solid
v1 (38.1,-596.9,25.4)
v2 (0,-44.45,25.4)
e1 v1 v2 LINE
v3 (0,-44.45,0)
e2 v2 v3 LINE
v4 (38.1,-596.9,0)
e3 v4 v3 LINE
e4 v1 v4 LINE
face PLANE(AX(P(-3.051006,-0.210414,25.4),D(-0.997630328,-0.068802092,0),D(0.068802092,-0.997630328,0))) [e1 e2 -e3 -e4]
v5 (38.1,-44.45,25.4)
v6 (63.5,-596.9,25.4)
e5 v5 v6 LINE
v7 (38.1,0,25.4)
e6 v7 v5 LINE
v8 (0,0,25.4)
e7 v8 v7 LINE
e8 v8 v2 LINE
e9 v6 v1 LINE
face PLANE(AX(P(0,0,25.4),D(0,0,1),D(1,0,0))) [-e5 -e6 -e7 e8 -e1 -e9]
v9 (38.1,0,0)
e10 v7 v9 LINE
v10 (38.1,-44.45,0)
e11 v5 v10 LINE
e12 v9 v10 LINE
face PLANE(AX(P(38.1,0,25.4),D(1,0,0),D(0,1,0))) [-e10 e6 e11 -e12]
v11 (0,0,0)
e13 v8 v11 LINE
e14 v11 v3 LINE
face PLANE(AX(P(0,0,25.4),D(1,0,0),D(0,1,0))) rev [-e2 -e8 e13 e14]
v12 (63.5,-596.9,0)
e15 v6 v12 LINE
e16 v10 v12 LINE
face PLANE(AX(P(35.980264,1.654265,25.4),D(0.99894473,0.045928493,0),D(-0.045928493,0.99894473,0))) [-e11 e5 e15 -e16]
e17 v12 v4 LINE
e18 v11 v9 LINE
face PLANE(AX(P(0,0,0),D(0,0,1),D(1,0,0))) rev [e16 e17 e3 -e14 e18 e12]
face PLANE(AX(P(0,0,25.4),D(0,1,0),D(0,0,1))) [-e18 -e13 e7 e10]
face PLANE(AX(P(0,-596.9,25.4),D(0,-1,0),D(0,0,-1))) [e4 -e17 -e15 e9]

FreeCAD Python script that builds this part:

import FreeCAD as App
import Part
import Sketcher
from FreeCAD import Vector
Q = App.Units.Quantity


def add_polygon(sketch, points):
    """Adds a closed chain of lines whose ends are joined by coincident constraints."""
    first, n = sketch.GeometryCount, len(points)
    for a, b in zip(points, points[1:] + points[:1]):
        sketch.addGeometry(Part.LineSegment(App.Vector(*a, 0), App.Vector(*b, 0)), False)
    for i in range(n):
        sketch.addConstraint(Sketcher.Constraint("Coincident", first + i, 2, first + (i + 1) % n, 1))

doc = App.newDocument("Part")
body = doc.addObject("PartDesign::Body", "Body")

# Sketch on XY plane
sketch1 = doc.addObject("Sketcher::SketchObject", "Sketch")
body.addObject(sketch1)
sketch1.AttachmentSupport = (doc.XY_Plane, [""])
sketch1.MapMode = "FlatFace"
add_polygon(sketch1, [(0, 0), (0, -44.45), (38.1, -596.9), (63.5, -596.9), (38.1, -44.45), (38.1, 0)])  # lines 0-5
sketch1.addConstraint([
    Sketcher.Constraint("Vertical", 0),
    Sketcher.Constraint("Horizontal", 2),
    Sketcher.Constraint("Vertical", 4),
    Sketcher.Constraint("Horizontal", 5),
    Sketcher.Constraint("Coincident", 5, 2, -1, 1),
    Sketcher.Constraint("Horizontal", 0, 2, 3, 2),
    Sketcher.Constraint("Vertical", 1, 2, 3, 2),
    Sketcher.Constraint("DistanceX", 2, 1, 2, 2, Q("1 in")),
    Sketcher.Constraint("DistanceX", 5, 2, 5, 1, Q("1.5 in")),
    Sketcher.Constraint("DistanceY", 0, 2, 0, 1, Q("1.75 in")),
    Sketcher.Constraint("DistanceY", 1, 2, -1, 1, Q("23.5 in")),
])
pad1 = doc.addObject("PartDesign::Pad", "Pad")
body.addObject(pad1)
pad1.Profile = sketch1
pad1.Length = Q("1 in")

doc.recompute()
